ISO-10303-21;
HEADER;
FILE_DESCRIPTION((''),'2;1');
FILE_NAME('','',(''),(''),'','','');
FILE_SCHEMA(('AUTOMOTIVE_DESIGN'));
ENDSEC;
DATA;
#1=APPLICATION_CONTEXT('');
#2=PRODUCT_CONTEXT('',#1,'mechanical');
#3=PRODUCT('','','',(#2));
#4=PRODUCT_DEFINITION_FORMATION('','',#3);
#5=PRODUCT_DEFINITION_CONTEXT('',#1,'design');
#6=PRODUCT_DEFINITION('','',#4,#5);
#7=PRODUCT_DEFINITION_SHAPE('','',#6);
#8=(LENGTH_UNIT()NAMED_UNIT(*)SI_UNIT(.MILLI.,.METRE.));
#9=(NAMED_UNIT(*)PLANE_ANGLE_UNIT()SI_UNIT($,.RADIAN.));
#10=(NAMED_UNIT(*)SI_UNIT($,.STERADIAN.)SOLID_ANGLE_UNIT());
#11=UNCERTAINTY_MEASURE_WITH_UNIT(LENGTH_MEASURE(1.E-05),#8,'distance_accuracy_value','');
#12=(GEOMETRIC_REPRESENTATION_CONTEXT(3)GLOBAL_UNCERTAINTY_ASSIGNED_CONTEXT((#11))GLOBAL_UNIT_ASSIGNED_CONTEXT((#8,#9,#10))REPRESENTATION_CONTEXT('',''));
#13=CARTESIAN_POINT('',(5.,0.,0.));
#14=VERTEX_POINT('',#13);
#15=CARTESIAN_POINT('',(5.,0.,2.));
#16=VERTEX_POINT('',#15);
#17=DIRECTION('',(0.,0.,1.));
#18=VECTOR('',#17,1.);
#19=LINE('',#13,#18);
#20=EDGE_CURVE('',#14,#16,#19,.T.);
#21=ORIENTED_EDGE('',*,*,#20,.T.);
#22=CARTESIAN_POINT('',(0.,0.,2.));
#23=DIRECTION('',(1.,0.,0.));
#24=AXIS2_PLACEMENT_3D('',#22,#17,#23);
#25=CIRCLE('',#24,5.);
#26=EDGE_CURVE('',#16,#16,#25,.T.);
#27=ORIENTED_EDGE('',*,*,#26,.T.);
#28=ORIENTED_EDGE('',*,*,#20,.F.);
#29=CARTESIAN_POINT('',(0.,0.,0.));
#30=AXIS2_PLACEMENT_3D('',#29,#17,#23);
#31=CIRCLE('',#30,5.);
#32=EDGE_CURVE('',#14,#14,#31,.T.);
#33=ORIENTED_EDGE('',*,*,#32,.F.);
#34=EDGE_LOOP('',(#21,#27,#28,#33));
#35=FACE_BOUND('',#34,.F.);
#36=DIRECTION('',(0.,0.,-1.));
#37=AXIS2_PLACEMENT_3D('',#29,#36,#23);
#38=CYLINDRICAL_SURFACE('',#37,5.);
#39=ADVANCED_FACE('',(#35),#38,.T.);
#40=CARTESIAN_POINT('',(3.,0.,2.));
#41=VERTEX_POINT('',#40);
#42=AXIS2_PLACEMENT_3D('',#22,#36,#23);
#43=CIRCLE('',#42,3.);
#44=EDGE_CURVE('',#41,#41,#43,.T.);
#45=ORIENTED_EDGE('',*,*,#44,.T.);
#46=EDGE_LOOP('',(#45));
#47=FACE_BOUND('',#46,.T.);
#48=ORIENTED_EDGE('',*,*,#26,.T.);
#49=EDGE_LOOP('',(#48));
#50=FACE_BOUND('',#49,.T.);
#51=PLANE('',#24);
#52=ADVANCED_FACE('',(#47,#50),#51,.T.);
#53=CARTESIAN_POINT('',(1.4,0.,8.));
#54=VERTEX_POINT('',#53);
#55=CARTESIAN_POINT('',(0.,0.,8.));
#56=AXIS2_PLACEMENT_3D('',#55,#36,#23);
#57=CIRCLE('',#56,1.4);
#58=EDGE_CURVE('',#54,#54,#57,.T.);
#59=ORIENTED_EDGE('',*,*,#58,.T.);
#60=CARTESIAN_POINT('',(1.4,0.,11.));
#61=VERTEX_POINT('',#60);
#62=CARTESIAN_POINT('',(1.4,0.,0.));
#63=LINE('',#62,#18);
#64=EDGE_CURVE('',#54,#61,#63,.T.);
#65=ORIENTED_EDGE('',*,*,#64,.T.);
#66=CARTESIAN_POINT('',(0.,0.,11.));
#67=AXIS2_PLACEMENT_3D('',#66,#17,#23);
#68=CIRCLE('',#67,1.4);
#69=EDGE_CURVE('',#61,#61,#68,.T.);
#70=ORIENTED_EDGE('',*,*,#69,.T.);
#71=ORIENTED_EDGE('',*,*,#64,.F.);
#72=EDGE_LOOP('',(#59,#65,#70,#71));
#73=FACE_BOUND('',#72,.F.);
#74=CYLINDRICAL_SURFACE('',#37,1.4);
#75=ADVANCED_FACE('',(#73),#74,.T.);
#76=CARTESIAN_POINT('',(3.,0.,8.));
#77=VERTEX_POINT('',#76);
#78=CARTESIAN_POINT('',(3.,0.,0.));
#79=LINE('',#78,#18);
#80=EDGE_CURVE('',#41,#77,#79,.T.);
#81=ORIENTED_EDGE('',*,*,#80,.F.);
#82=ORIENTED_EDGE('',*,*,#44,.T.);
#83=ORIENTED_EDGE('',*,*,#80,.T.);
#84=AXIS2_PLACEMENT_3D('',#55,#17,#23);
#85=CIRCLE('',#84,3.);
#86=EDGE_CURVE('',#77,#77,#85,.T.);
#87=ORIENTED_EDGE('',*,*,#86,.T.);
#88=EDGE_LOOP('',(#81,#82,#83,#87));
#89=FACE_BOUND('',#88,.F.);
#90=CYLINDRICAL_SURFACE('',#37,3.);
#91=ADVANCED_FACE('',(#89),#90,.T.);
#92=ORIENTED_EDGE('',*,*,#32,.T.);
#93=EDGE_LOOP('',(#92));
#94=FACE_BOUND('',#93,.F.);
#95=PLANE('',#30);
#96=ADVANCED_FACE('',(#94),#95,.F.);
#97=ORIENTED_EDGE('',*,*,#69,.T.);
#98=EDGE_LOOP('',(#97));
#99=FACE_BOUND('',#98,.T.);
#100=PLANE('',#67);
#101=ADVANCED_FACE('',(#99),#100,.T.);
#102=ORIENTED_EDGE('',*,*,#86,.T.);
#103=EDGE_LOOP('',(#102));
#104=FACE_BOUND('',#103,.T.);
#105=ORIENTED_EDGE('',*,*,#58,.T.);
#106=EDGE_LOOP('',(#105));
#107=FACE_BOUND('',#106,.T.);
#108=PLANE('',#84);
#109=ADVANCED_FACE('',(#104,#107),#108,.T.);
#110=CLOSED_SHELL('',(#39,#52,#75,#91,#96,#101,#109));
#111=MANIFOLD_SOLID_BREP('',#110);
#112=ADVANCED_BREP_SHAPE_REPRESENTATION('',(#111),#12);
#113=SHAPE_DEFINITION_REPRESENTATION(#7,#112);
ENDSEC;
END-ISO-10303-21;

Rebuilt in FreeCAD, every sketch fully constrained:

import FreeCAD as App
import Part
import Sketcher
Q = App.Units.Quantity

doc = App.newDocument("Part")
body = doc.addObject("PartDesign::Body", "Body")

sketch1 = body.newObject("Sketcher::SketchObject", "Sketch")
sketch1.AttachmentSupport = (doc.getObject("XY_Plane"), [""])
sketch1.MapMode = "FlatFace"
sketch1.addGeometry(Part.Circle(App.Vector(0, 0, 0), App.Vector(0, 0, 1), 5), False)
sketch1.addConstraint(Sketcher.Constraint("Coincident", 0, 3, -1, 1))
sketch1.addConstraint(Sketcher.Constraint("Diameter", 0, Q("10 mm")))
pad1 = body.newObject("PartDesign::Pad", "Pad")
pad1.Profile = sketch1
pad1.Length = 2

sketch2 = body.newObject("Sketcher::SketchObject", "Sketch001")
sketch2.AttachmentSupport = (doc.getObject("XY_Plane"), [""])
sketch2.MapMode = "FlatFace"
sketch2.addGeometry(Part.Circle(App.Vector(0, 0, 0), App.Vector(0, 0, 1), 3), False)
sketch2.addConstraint(Sketcher.Constraint("Coincident", 0, 3, -1, 1))
sketch2.addConstraint(Sketcher.Constraint("Diameter", 0, Q("6 mm")))
pad2 = body.newObject("PartDesign::Pad", "Pad001")
pad2.Profile = sketch2
pad2.Length = 8

sketch3 = body.newObject("Sketcher::SketchObject", "Sketch002")
sketch3.AttachmentSupport = (doc.getObject("XY_Plane"), [""])
sketch3.MapMode = "FlatFace"
sketch3.addGeometry(Part.Circle(App.Vector(0, 0, 0), App.Vector(0, 0, 1), 1.4), False)
sketch3.addConstraint(Sketcher.Constraint("Coincident", 0, 3, -1, 1))
sketch3.addConstraint(Sketcher.Constraint("Diameter", 0, Q("2.8 mm")))
pad3 = body.newObject("PartDesign::Pad", "Pad002")
pad3.Profile = sketch3
pad3.Length = 11

doc.recompute()
